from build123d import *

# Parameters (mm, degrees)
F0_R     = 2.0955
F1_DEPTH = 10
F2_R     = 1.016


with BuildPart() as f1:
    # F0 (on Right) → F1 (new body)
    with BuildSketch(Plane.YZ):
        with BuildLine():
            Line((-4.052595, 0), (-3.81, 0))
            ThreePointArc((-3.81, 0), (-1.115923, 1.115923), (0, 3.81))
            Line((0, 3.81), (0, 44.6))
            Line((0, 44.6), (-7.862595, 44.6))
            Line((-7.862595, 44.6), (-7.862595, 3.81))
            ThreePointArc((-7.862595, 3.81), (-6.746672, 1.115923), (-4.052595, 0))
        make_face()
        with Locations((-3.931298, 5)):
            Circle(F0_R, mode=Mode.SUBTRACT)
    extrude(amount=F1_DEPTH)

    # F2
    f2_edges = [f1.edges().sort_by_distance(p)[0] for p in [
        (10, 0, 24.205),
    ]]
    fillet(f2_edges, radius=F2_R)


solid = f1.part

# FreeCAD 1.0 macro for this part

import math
import FreeCAD as App
import Part
import Sketcher
Q = App.Units.Quantity


def edges_at(feature, points):
    """Names of the edges that pass closest to the given points."""
    edges = feature.Shape.Edges
    near = lambda p: min(range(len(edges)), key=lambda i: edges[i].distToShape(Part.Vertex(*p))[0])
    return sorted({f"Edge{near(p) + 1}" for p in points})

doc = App.newDocument("Part")
body = doc.addObject("PartDesign::Body", "Body")

sketch1 = doc.addObject("Sketcher::SketchObject", "Sketch")
body.addObject(sketch1)
sketch1.AttachmentSupport = (doc.YZ_Plane, [""])
sketch1.MapMode = "FlatFace"
sketch1.addGeometry(Part.LineSegment(App.Vector(-4.05, 0, 0), App.Vector(-3.81, 0, 0)), False)
sketch1.addGeometry(Part.ArcOfCircle(Part.Circle(App.Vector(-3.81, 3.81, 0), App.Vector(0, 0, 1), 3.81), math.radians(-90), math.radians(0)), False)
sketch1.addGeometry(Part.LineSegment(App.Vector(0, 3.81, 0), App.Vector(0, 44.6, 0)), False)
sketch1.addGeometry(Part.LineSegment(App.Vector(0, 44.6, 0), App.Vector(-7.86, 44.6, 0)), False)
sketch1.addGeometry(Part.LineSegment(App.Vector(-7.86, 44.6, 0), App.Vector(-7.86, 3.81, 0)), False)
sketch1.addGeometry(Part.ArcOfCircle(Part.Circle(App.Vector(-4.05, 3.81, 0), App.Vector(0, 0, 1), 3.81), math.radians(180), math.radians(270)), False)
sketch1.addGeometry(Part.Circle(App.Vector(-3.93, 5, 0), App.Vector(0, 0, 1), 2.1), False)
sketch1.addConstraint(Sketcher.Constraint("Tangent", 0, 2, 1, 1))
sketch1.addConstraint(Sketcher.Constraint("Tangent", 1, 2, 2, 1))
sketch1.addConstraint(Sketcher.Constraint("Coincident", 2, 2, 3, 1))
sketch1.addConstraint(Sketcher.Constraint("Coincident", 3, 2, 4, 1))
sketch1.addConstraint(Sketcher.Constraint("Tangent", 4, 2, 5, 1))
sketch1.addConstraint(Sketcher.Constraint("Tangent", 5, 2, 0, 1))
sketch1.addConstraint(Sketcher.Constraint("Horizontal", 0))
sketch1.addConstraint(Sketcher.Constraint("Vertical", 2))
sketch1.addConstraint(Sketcher.Constraint("Horizontal", 3))
sketch1.addConstraint(Sketcher.Constraint("Vertical", 4))
sketch1.addConstraint(Sketcher.Constraint("Equal", 1, 5))
sketch1.addConstraint(Sketcher.Constraint("PointOnObject", 0, 2, -1))
sketch1.addConstraint(Sketcher.Constraint("PointOnObject", 1, 2, -2))
sketch1.addConstraint(Sketcher.Constraint("Radius", 1, Q("0.15 in")))
sketch1.addConstraint(Sketcher.Constraint("Diameter", 6, Q("0.165 in")))
sketch1.addConstraint(Sketcher.Constraint("DistanceY", 2, 1, 2, 2, Q("40.79 mm")))
sketch1.addConstraint(Sketcher.Constraint("DistanceX", 6, 3, -1, 1, Q("3.931298 mm")))
sketch1.addConstraint(Sketcher.Constraint("DistanceY", -1, 1, 6, 3, Q("5 mm")))
sketch1.addConstraint(Sketcher.Constraint("DistanceX", 0, 1, 0, 2, Q("0.242595 mm")))
pad1 = doc.addObject("PartDesign::Pad", "Pad")
body.addObject(pad1)
pad1.Profile = sketch1
pad1.Length = 10
doc.recompute()

fillet = doc.addObject("PartDesign::Fillet", "Fillet")
body.addObject(fillet)
fillet.Base = (pad1, edges_at(pad1, [(10, 0, 24.205)]))
fillet.Radius = Q("0.04 in")

doc.recompute()
